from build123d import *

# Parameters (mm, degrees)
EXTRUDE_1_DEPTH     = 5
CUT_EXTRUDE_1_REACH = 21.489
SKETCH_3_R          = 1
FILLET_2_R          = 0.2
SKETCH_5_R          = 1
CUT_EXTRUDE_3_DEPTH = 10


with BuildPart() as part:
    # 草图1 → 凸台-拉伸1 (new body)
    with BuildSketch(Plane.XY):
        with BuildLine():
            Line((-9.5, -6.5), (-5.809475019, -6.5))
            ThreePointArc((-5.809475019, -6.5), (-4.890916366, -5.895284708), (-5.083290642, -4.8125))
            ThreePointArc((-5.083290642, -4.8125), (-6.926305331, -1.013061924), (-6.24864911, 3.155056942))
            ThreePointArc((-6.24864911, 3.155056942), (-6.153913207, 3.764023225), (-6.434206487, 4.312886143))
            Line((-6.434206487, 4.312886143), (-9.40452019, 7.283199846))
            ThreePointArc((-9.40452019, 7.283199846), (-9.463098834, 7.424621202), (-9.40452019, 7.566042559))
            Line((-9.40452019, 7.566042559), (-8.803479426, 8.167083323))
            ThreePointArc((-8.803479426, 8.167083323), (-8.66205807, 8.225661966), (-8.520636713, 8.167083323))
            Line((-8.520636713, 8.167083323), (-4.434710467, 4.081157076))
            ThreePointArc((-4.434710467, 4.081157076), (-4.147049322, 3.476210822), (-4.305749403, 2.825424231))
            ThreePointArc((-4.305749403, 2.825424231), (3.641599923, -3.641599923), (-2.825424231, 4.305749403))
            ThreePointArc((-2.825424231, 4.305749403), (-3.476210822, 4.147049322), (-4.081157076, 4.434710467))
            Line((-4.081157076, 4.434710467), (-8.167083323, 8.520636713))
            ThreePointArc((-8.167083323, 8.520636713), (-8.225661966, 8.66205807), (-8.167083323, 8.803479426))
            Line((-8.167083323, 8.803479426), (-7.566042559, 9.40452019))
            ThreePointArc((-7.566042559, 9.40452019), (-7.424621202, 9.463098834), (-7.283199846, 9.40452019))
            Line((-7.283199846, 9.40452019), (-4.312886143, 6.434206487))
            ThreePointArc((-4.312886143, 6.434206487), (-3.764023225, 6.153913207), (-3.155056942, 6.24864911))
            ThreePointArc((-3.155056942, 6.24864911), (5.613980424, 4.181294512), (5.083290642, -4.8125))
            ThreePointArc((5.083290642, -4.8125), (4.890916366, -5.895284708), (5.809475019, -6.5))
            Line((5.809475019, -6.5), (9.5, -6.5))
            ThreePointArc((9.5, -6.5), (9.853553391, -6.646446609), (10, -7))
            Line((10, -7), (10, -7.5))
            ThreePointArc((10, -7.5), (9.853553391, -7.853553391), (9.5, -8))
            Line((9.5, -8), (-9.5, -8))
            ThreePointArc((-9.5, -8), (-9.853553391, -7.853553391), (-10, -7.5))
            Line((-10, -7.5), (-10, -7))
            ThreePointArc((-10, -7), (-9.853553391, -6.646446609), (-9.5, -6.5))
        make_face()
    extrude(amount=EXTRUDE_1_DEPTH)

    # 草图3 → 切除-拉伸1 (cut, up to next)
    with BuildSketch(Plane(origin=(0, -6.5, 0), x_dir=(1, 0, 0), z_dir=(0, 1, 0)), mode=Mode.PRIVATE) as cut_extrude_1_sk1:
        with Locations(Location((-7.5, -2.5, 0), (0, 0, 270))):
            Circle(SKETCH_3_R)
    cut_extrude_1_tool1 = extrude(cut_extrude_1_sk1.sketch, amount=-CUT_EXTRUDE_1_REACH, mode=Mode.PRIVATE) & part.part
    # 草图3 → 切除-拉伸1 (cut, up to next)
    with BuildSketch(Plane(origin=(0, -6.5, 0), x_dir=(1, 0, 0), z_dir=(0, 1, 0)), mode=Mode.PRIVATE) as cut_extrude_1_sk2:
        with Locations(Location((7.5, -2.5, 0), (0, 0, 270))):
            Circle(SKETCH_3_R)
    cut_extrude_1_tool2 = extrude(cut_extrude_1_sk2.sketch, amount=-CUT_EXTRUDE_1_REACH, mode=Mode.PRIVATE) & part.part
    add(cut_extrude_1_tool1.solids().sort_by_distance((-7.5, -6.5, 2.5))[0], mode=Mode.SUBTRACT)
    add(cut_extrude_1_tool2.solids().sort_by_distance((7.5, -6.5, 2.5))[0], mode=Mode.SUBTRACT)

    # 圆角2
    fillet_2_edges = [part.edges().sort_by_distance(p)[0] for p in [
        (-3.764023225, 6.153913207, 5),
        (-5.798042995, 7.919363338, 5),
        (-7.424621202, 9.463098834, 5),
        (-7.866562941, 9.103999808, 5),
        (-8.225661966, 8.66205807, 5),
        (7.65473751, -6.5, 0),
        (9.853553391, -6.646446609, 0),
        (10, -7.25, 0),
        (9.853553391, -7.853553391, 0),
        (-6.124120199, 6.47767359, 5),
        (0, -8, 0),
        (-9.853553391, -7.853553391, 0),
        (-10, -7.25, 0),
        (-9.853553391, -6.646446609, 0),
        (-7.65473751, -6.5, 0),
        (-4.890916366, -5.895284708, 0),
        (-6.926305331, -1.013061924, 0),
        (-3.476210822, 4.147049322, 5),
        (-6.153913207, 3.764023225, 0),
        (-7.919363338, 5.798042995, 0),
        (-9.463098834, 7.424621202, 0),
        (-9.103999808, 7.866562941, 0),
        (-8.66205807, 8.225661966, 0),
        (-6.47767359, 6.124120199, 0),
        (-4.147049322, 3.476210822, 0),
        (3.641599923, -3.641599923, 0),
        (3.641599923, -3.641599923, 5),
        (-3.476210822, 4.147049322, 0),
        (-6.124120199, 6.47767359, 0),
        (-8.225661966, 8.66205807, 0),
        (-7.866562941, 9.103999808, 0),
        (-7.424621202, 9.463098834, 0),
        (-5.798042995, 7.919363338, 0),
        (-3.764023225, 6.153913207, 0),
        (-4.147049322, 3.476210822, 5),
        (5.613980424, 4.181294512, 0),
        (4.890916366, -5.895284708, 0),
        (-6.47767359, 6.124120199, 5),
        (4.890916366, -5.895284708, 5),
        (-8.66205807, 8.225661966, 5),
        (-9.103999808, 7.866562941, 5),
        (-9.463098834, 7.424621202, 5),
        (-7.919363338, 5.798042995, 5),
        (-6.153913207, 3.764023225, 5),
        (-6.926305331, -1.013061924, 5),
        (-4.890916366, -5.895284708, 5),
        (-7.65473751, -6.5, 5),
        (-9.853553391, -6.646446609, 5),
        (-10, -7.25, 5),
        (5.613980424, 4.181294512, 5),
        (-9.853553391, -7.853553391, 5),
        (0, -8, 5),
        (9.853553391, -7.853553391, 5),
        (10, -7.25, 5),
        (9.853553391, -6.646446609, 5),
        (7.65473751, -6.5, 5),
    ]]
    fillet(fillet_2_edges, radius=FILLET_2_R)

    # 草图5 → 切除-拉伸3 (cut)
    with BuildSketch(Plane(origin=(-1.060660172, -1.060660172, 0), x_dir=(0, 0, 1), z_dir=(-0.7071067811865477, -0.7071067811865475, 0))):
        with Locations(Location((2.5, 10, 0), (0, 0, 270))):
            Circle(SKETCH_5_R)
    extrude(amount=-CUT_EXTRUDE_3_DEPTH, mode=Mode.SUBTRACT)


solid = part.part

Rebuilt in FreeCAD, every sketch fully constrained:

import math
import FreeCAD as App
import Part
import Sketcher
Q = App.Units.Quantity


def edges_at(feature, points):
    """Names of the edges that pass closest to the given points."""
    edges = feature.Shape.Edges
    near = lambda p: min(range(len(edges)), key=lambda i: edges[i].distToShape(Part.Vertex(*p))[0])
    return sorted({f"Edge{near(p) + 1}" for p in points})

doc = App.newDocument("Part")
body = doc.addObject("PartDesign::Body", "Body")

sketch1 = body.newObject("Sketcher::SketchObject", "Sketch")
sketch1.AttachmentSupport = (doc.getObject("XY_Plane"), [""])
sketch1.MapMode = "FlatFace"
sketch1.addGeometry(Part.LineSegment(App.Vector(-5.81, -6.5, 0), App.Vector(-9.5, -6.5, 0)), False)
sketch1.addGeometry(Part.ArcOfCircle(Part.Circle(App.Vector(-9.5, -7, 0), App.Vector(0, 0, 1), 0.5), math.radians(90), math.radians(180)), False)
sketch1.addGeometry(Part.LineSegment(App.Vector(-10, -7, 0), App.Vector(-10, -7.5, 0)), False)
sketch1.addGeometry(Part.ArcOfCircle(Part.Circle(App.Vector(-9.5, -7.5, 0), App.Vector(0, 0, 1), 0.5), math.radians(180), math.radians(270)), False)
sketch1.addGeometry(Part.LineSegment(App.Vector(-9.5, -8, 0), App.Vector(9.5, -8, 0)), False)
sketch1.addGeometry(Part.ArcOfCircle(Part.Circle(App.Vector(9.5, -7.5, 0), App.Vector(0, 0, 1), 0.5), math.radians(-90), math.radians(0)), False)
sketch1.addGeometry(Part.LineSegment(App.Vector(10, -7.5, 0), App.Vector(10, -7, 0)), False)
sketch1.addGeometry(Part.ArcOfCircle(Part.Circle(App.Vector(9.5, -7, 0), App.Vector(0, 0, 1), 0.5), math.radians(0), math.radians(90)), False)
sketch1.addGeometry(Part.LineSegment(App.Vector(9.5, -6.5, 0), App.Vector(5.81, -6.5, 0)), False)
sketch1.addGeometry(Part.ArcOfCircle(Part.Circle(App.Vector(5.81, -5.5, 0), App.Vector(0, 0, 1), 1), math.radians(137), math.radians(270)), False)
sketch1.addGeometry(Part.ArcOfCircle(Part.Circle(App.Vector(0, 0, 0), App.Vector(0, 0, 1), 7), math.radians(-43), math.radians(117)), False)
sketch1.addGeometry(Part.ArcOfCircle(Part.Circle(App.Vector(-3.61, 7.14, 0), App.Vector(0, 0, 1), 1), math.radians(-135), math.radians(-63)), False)
sketch1.addGeometry(Part.LineSegment(App.Vector(-4.31, 6.43, 0), App.Vector(-7.28, 9.4, 0)), False)
sketch1.addGeometry(Part.ArcOfCircle(Part.Circle(App.Vector(-7.42, 9.26, 0), App.Vector(0, 0, 1), 0.2), math.radians(45), math.radians(135)), False)
sketch1.addGeometry(Part.LineSegment(App.Vector(-7.57, 9.4, 0), App.Vector(-8.17, 8.8, 0)), False)
sketch1.addGeometry(Part.ArcOfCircle(Part.Circle(App.Vector(-8.03, 8.66, 0), App.Vector(0, 0, 1), 0.2), math.radians(135), math.radians(225)), False)
sketch1.addGeometry(Part.LineSegment(App.Vector(-8.17, 8.52, 0), App.Vector(-4.08, 4.43, 0)), False)
sketch1.addGeometry(Part.ArcOfCircle(Part.Circle(App.Vector(-3.37, 5.14, 0), App.Vector(0, 0, 1), 1), math.radians(-135), math.radians(-57)), False)
sketch1.addGeometry(Part.ArcOfCircle(Part.Circle(App.Vector(0, 0, 0), App.Vector(0, 0, 1), 5.15), math.radians(147), math.radians(483)), False)
sketch1.addGeometry(Part.ArcOfCircle(Part.Circle(App.Vector(-5.14, 3.37, 0), App.Vector(0, 0, 1), 1), math.radians(-33), math.radians(45)), False)
sketch1.addGeometry(Part.LineSegment(App.Vector(-4.43, 4.08, 0), App.Vector(-8.52, 8.17, 0)), False)
sketch1.addGeometry(Part.ArcOfCircle(Part.Circle(App.Vector(-8.66, 8.03, 0), App.Vector(0, 0, 1), 0.2), math.radians(45), math.radians(135)), False)
sketch1.addGeometry(Part.LineSegment(App.Vector(-8.8, 8.17, 0), App.Vector(-9.4, 7.57, 0)), False)
sketch1.addGeometry(Part.ArcOfCircle(Part.Circle(App.Vector(-9.26, 7.42, 0), App.Vector(0, 0, 1), 0.2), math.radians(135), math.radians(225)), False)
sketch1.addGeometry(Part.LineSegment(App.Vector(-9.4, 7.28, 0), App.Vector(-6.43, 4.31, 0)), False)
sketch1.addGeometry(Part.ArcOfCircle(Part.Circle(App.Vector(-7.14, 3.61, 0), App.Vector(0, 0, 1), 1), math.radians(-27), math.radians(45)), False)
sketch1.addGeometry(Part.ArcOfCircle(Part.Circle(App.Vector(0, 0, 0), App.Vector(0, 0, 1), 7), math.radians(153), math.radians(223)), False)
sketch1.addGeometry(Part.ArcOfCircle(Part.Circle(App.Vector(-5.81, -5.5, 0), App.Vector(0, 0, 1), 1), math.radians(-90), math.radians(43)), False)
sketch1.addConstraint(Sketcher.Constraint("Tangent", 0, 2, 1, 1))
sketch1.addConstraint(Sketcher.Constraint("Tangent", 1, 2, 2, 1))
sketch1.addConstraint(Sketcher.Constraint("Tangent", 2, 2, 3, 1))
sketch1.addConstraint(Sketcher.Constraint("Tangent", 3, 2, 4, 1))
sketch1.addConstraint(Sketcher.Constraint("Tangent", 4, 2, 5, 1))
sketch1.addConstraint(Sketcher.Constraint("Tangent", 5, 2, 6, 1))
sketch1.addConstraint(Sketcher.Constraint("Tangent", 6, 2, 7, 1))
sketch1.addConstraint(Sketcher.Constraint("Tangent", 7, 2, 8, 1))
sketch1.addConstraint(Sketcher.Constraint("Tangent", 8, 2, 9, 2))
sketch1.addConstraint(Sketcher.Constraint("Tangent", 9, 1, 10, 1))
sketch1.addConstraint(Sketcher.Constraint("Tangent", 10, 2, 11, 2))
sketch1.addConstraint(Sketcher.Constraint("Tangent", 11, 1, 12, 1))
sketch1.addConstraint(Sketcher.Constraint("Tangent", 12, 2, 13, 1))
sketch1.addConstraint(Sketcher.Constraint("Tangent", 13, 2, 14, 1))
sketch1.addConstraint(Sketcher.Constraint("Tangent", 14, 2, 15, 1))
sketch1.addConstraint(Sketcher.Constraint("Tangent", 15, 2, 16, 1))
sketch1.addConstraint(Sketcher.Constraint("Tangent", 16, 2, 17, 1))
sketch1.addConstraint(Sketcher.Constraint("Tangent", 17, 2, 18, 2))
sketch1.addConstraint(Sketcher.Constraint("Tangent", 18, 1, 19, 1))
sketch1.addConstraint(Sketcher.Constraint("Tangent", 19, 2, 20, 1))
sketch1.addConstraint(Sketcher.Constraint("Tangent", 20, 2, 21, 1))
sketch1.addConstraint(Sketcher.Constraint("Tangent", 21, 2, 22, 1))
sketch1.addConstraint(Sketcher.Constraint("Tangent", 22, 2, 23, 1))
sketch1.addConstraint(Sketcher.Constraint("Tangent", 23, 2, 24, 1))
sketch1.addConstraint(Sketcher.Constraint("Tangent", 24, 2, 25, 2))
sketch1.addConstraint(Sketcher.Constraint("Tangent", 25, 1, 26, 1))
sketch1.addConstraint(Sketcher.Constraint("Tangent", 26, 2, 27, 2))
sketch1.addConstraint(Sketcher.Constraint("Tangent", 27, 1, 0, 1))
sketch1.addConstraint(Sketcher.Constraint("Horizontal", 0))
sketch1.addConstraint(Sketcher.Constraint("Vertical", 2))
sketch1.addConstraint(Sketcher.Constraint("Horizontal", 4))
sketch1.addConstraint(Sketcher.Constraint("Vertical", 6))
sketch1.addConstraint(Sketcher.Constraint("Horizontal", 8))
sketch1.addConstraint(Sketcher.Constraint("Coincident", 10, 3, -1, 1))
sketch1.addConstraint(Sketcher.Constraint("Coincident", 18, 3, -1, 1))
sketch1.addConstraint(Sketcher.Constraint("Coincident", 26, 3, -1, 1))
sketch1.addConstraint(Sketcher.Constraint("Equal", 1, 3))
sketch1.addConstraint(Sketcher.Constraint("Equal", 3, 5))
sketch1.addConstraint(Sketcher.Constraint("Equal", 5, 7))
sketch1.addConstraint(Sketcher.Constraint("Equal", 9, 11))
sketch1.addConstraint(Sketcher.Constraint("Equal", 13, 15))
sketch1.addConstraint(Sketcher.Constraint("Equal", 11, 17))
sketch1.addConstraint(Sketcher.Constraint("Equal", 17, 19))
sketch1.addConstraint(Sketcher.Constraint("Equal", 15, 21))
sketch1.addConstraint(Sketcher.Constraint("Equal", 21, 23))
sketch1.addConstraint(Sketcher.Constraint("Equal", 19, 25))
sketch1.addConstraint(Sketcher.Constraint("Equal", 10, 26))
sketch1.addConstraint(Sketcher.Constraint("Equal", 25, 27))
sketch1.addConstraint(Sketcher.Constraint("Symmetric", 1, 3, 7, 3, -2))
sketch1.addConstraint(Sketcher.Constraint("Perpendicular", 12, 14))
sketch1.addConstraint(Sketcher.Constraint("Perpendicular", 14, 16))
sketch1.addConstraint(Sketcher.Constraint("Parallel", 16, 20))
sketch1.addConstraint(Sketcher.Constraint("Perpendicular", 20, 22))
sketch1.addConstraint(Sketcher.Constraint("Perpendicular", 22, 24))
sketch1.addConstraint(Sketcher.Constraint("Horizontal", 12, 2, 13, 2))
sketch1.addConstraint(Sketcher.Constraint("Equal", 16, 20))
sketch1.addConstraint(Sketcher.Constraint("Equal", 14, 22))
sketch1.addConstraint(Sketcher.Constraint("Equal", 12, 24))
sketch1.addConstraint(Sketcher.Constraint("Radius", 9, Q("1 mm")))
sketch1.addConstraint(Sketcher.Constraint("Radius", 10, Q("7 mm")))
sketch1.addConstraint(Sketcher.Constraint("Radius", 1, Q("0.5 mm")))
sketch1.addConstraint(Sketcher.Constraint("Radius", 13, Q("0.2 mm")))
sketch1.addConstraint(Sketcher.Constraint("DistanceX", 4, 1, 4, 2, Q("19 mm")))
sketch1.addConstraint(Sketcher.Constraint("Radius", 18, Q("5.15 mm")))
sketch1.addConstraint(Sketcher.Constraint("DistanceY", 2, 2, 2, 1, Q("0.5 mm")))
sketch1.addConstraint(Sketcher.Constraint("DistanceY", 1, 3, -1, 1, Q("7 mm")))
sketch1.addConstraint(Sketcher.Constraint("Distance", 14, Q("0.85 mm")))
sketch1.addConstraint(Sketcher.Constraint("DistanceY", -1, 1, 13, 3, Q("9.263099 mm")))
sketch1.addConstraint(Sketcher.Constraint("DistanceX", 12, 2, -1, 1, Q("7.2832 mm")))
pad1 = body.newObject("PartDesign::Pad", "Pad")
pad1.Profile = sketch1
pad1.Length = 5

sketch2 = body.newObject("Sketcher::SketchObject", "Sketch001")
sketch2.AttachmentSupport = (doc.getObject("XZ_Plane"), [""])
sketch2.MapMode = "FlatFace"
sketch2.AttachmentOffset = App.Placement(App.Vector(0, 0, 6.5), App.Rotation())
sketch2.addGeometry(Part.Circle(App.Vector(-7.5, 2.5, 0), App.Vector(0, 0, 1), 1), False)
sketch2.addConstraint(Sketcher.Constraint("Diameter", 0, Q("2 mm")))
sketch2.addConstraint(Sketcher.Constraint("DistanceX", 0, 3, -1, 1, Q("7.5 mm")))
sketch2.addConstraint(Sketcher.Constraint("DistanceY", -1, 1, 0, 3, Q("2.5 mm")))
pocket1 = body.newObject("PartDesign::Pocket", "Pocket")
pocket1.Profile = sketch2
pocket1.Type = "UpToFirst"
pocket1.Reversed = True

sketch3 = body.newObject("Sketcher::SketchObject", "Sketch002")
sketch3.AttachmentSupport = (doc.getObject("XZ_Plane"), [""])
sketch3.MapMode = "FlatFace"
sketch3.AttachmentOffset = App.Placement(App.Vector(0, 0, 6.5), App.Rotation())
sketch3.addGeometry(Part.Circle(App.Vector(7.5, 2.5, 0), App.Vector(0, 0, 1), 1), False)
sketch3.addConstraint(Sketcher.Constraint("Diameter", 0, Q("2 mm")))
sketch3.addConstraint(Sketcher.Constraint("DistanceX", -1, 1, 0, 3, Q("7.5 mm")))
sketch3.addConstraint(Sketcher.Constraint("DistanceY", -1, 1, 0, 3, Q("2.5 mm")))
pocket2 = body.newObject("PartDesign::Pocket", "Pocket001")
pocket2.Profile = sketch3
pocket2.Type = "UpToFirst"
pocket2.Reversed = True
doc.recompute()

fillet = body.newObject("PartDesign::Fillet", "Fillet")
fillet.Base = (pocket2, edges_at(pocket2, [
    (-3.764, 6.154, 5),
    (-5.798, 7.919, 5),
    (-7.425, 9.463, 5),
    (-7.867, 9.104, 5),
    (-8.226, 8.662, 5),
    (7.655, -6.5, 0),
    (9.854, -6.646, 0),
    (10, -7.25, 0),
    (9.854, -7.854, 0),
    (-6.124, 6.478, 5),
    (0, -8, 0),
    (-9.854, -7.854, 0),
    (-10, -7.25, 0),
    (-9.854, -6.646, 0),
    (-7.655, -6.5, 0),
    (-4.891, -5.895, 0),
    (-6.926, -1.013, 0),
    (-3.476, 4.147, 5),
    (-6.154, 3.764, 0),
    (-7.919, 5.798, 0),
    (-9.463, 7.425, 0),
    (-9.104, 7.867, 0),
    (-8.662, 8.226, 0),
    (-6.478, 6.124, 0),
    (-4.147, 3.476, 0),
    (3.642, -3.642, 0),
    (3.642, -3.642, 5),
    (-3.476, 4.147, 0),
    (-6.124, 6.478, 0),
    (-8.226, 8.662, 0),
    (-7.867, 9.104, 0),
    (-7.425, 9.463, 0),
    (-5.798, 7.919, 0),
    (-3.764, 6.154, 0),
    (-4.147, 3.476, 5),
    (5.614, 4.181, 0),
    (4.891, -5.895, 0),
    (-6.478, 6.124, 5),
    (4.891, -5.895, 5),
    (-8.662, 8.226, 5),
    (-9.104, 7.867, 5),
    (-9.463, 7.425, 5),
    (-7.919, 5.798, 5),
    (-6.154, 3.764, 5),
    (-6.926, -1.013, 5),
    (-4.891, -5.895, 5),
    (-7.655, -6.5, 5),
    (-9.854, -6.646, 5),
    (-10, -7.25, 5),
    (5.614, 4.181, 5),
    (-9.854, -7.854, 5),
    (0, -8, 5),
    (9.854, -7.854, 5),
    (10, -7.25, 5),
    (9.854, -6.646, 5),
    (7.655, -6.5, 5),
]))
fillet.Radius = 0.2

sketch4 = body.newObject("Sketcher::SketchObject", "Sketch003")
sketch4.Placement = App.Placement(App.Vector(-1.06066, -1.06066, 0), App.Rotation(App.Vector(0, 0, 1), App.Vector(-0.707106781, 0.707106781, 0), App.Vector(-0.707106781, -0.707106781, 0), "ZXY"))
sketch4.addGeometry(Part.Circle(App.Vector(2.5, 10, 0), App.Vector(0, 0, 1), 1), False)
sketch4.addConstraint(Sketcher.Constraint("Diameter", 0, Q("2 mm")))
sketch4.addConstraint(Sketcher.Constraint("DistanceY", -1, 1, 0, 3, Q("10 mm")))
sketch4.addConstraint(Sketcher.Constraint("DistanceX", -1, 1, 0, 3, Q("2.5 mm")))
pocket3 = body.newObject("PartDesign::Pocket", "Pocket002")
pocket3.Profile = sketch4
pocket3.Length = 10

doc.recompute()
